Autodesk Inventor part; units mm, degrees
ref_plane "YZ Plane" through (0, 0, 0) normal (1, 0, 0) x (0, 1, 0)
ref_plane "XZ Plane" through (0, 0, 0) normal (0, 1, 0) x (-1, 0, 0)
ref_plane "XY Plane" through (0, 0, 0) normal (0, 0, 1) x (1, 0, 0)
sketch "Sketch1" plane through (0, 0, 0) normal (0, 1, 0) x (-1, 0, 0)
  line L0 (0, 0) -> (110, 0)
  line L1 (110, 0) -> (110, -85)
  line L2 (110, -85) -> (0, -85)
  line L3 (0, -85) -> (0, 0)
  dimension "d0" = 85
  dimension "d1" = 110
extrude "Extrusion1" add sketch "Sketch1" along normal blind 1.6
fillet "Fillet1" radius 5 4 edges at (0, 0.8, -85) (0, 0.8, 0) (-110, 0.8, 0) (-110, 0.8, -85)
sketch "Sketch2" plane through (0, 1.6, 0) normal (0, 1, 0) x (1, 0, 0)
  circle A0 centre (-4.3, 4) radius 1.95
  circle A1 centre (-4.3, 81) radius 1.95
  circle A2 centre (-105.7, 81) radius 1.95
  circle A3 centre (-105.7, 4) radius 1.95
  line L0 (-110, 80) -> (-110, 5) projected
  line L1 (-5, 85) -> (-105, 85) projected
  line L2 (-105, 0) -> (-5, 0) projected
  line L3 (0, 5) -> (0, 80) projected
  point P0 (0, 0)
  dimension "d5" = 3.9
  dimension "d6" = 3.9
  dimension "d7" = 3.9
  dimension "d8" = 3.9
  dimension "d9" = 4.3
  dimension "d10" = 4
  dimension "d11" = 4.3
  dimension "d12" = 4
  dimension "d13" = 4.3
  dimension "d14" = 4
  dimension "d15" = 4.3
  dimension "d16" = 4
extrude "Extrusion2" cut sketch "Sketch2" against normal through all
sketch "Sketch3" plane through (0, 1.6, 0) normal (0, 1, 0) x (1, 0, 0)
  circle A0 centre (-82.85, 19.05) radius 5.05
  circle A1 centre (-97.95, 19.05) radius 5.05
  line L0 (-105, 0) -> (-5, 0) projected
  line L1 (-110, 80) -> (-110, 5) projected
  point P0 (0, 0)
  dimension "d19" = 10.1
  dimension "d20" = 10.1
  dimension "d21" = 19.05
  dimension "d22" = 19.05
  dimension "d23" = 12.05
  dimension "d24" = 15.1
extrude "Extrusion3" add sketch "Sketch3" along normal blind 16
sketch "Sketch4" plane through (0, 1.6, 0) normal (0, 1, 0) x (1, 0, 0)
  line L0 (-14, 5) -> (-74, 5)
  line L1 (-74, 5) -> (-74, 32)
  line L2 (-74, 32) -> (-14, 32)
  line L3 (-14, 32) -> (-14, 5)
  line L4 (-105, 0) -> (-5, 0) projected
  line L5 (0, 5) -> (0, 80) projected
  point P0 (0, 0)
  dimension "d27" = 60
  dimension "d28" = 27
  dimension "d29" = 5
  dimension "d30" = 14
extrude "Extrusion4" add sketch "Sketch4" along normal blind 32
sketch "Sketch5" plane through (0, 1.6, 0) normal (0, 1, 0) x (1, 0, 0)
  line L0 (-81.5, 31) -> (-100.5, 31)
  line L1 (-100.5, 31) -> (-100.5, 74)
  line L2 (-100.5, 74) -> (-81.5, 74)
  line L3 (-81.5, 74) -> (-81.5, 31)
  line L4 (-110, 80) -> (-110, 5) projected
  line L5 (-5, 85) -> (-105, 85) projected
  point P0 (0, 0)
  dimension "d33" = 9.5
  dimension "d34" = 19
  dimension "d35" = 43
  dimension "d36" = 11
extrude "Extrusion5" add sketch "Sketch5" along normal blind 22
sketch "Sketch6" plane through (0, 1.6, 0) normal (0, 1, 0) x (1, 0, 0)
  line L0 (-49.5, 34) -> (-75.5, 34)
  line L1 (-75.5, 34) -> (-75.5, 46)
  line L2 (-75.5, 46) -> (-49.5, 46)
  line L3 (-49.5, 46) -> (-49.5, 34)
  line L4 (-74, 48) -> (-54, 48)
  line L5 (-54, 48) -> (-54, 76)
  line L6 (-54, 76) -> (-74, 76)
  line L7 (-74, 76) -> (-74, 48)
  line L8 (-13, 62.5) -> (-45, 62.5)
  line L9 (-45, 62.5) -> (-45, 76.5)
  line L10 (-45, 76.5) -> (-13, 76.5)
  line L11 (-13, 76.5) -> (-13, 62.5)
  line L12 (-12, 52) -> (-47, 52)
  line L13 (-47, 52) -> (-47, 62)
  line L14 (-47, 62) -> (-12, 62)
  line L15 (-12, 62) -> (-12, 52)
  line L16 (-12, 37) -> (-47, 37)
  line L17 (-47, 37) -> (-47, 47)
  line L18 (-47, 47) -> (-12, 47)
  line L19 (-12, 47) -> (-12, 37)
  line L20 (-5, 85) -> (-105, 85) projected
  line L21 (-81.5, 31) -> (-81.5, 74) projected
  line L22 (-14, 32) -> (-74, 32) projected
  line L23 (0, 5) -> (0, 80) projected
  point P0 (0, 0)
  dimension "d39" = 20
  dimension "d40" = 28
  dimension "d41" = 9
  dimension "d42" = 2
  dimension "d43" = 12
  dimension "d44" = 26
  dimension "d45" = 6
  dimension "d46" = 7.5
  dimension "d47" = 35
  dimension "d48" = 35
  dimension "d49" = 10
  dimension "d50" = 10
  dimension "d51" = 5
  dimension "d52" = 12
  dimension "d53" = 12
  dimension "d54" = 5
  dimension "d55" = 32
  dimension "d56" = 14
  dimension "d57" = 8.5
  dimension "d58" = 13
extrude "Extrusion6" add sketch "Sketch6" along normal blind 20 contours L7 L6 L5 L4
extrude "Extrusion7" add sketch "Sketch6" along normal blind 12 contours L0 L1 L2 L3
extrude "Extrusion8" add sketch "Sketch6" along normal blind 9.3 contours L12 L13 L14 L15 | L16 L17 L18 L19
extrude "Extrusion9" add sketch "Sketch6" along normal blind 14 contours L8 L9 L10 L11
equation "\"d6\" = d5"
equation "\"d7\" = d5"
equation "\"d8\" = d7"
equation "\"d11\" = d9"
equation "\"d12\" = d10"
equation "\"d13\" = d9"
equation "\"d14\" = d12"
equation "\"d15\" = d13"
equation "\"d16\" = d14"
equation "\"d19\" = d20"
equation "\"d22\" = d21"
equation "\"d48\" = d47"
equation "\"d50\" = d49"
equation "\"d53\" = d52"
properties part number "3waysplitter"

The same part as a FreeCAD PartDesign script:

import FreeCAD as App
import Part
import Sketcher
Q = App.Units.Quantity


def edges_at(feature, points):
    """Names of the edges that pass closest to the given points."""
    edges = feature.Shape.Edges
    near = lambda p: min(range(len(edges)), key=lambda i: edges[i].distToShape(Part.Vertex(*p))[0])
    return sorted({f"Edge{near(p) + 1}" for p in points})


def add_polygon(sketch, points):
    """Adds a closed chain of lines whose ends are joined by coincident constraints."""
    first, n = sketch.GeometryCount, len(points)
    for a, b in zip(points, points[1:] + points[:1]):
        sketch.addGeometry(Part.LineSegment(App.Vector(*a, 0), App.Vector(*b, 0)), False)
    for i in range(n):
        sketch.addConstraint(Sketcher.Constraint("Coincident", first + i, 2, first + (i + 1) % n, 1))

doc = App.newDocument("Part")
body = doc.addObject("PartDesign::Body", "Body")

sketch1 = doc.addObject("Sketcher::SketchObject", "Sketch")
body.addObject(sketch1)
sketch1.AttachmentSupport = (doc.XZ_Plane, [""])
sketch1.MapMode = "FlatFace"
add_polygon(sketch1, [(-110, 0), (0, 0), (0, -85), (-110, -85)])
sketch1.addConstraint([
    Sketcher.Constraint("Horizontal", 0),
    Sketcher.Constraint("Vertical", 1),
    Sketcher.Constraint("Horizontal", 2),
    Sketcher.Constraint("Vertical", 3),
    Sketcher.Constraint("Coincident", 0, 2, -1, 1),
    Sketcher.Constraint("DistanceX", 0, 1, 0, 2, Q("110 mm")),
    Sketcher.Constraint("DistanceY", 1, 2, 1, 1, Q("85 mm")),
])
pad1 = doc.addObject("PartDesign::Pad", "Pad")
body.addObject(pad1)
pad1.Profile = sketch1
pad1.Length = 1.6
pad1.Reversed = True
doc.recompute()

fillet = doc.addObject("PartDesign::Fillet", "Fillet")
body.addObject(fillet)
fillet.Base = (pad1, edges_at(pad1, [
    (0, 0.8, -85),
    (0, 0.8, 0),
    (-110, 0.8, 0),
    (-110, 0.8, -85),
]))
fillet.Radius = 5

sketch2 = doc.addObject("Sketcher::SketchObject", "Sketch001")
body.addObject(sketch2)
sketch2.AttachmentSupport = (doc.XZ_Plane, [""])
sketch2.MapMode = "FlatFace"
sketch2.AttachmentOffset = App.Placement(App.Vector(0, 0, -1.6), App.Rotation())
sketch2.addGeometry([
    Part.Circle(App.Vector(-4.3, -4, 0), App.Vector(0, 0, 1), 1.95),
    Part.Circle(App.Vector(-4.3, -81, 0), App.Vector(0, 0, 1), 1.95),
    Part.Circle(App.Vector(-105.7, -81, 0), App.Vector(0, 0, 1), 1.95),
    Part.Circle(App.Vector(-105.7, -4, 0), App.Vector(0, 0, 1), 1.95),
], False)
sketch2.addConstraint([
    Sketcher.Constraint("Equal", 0, 1),
    Sketcher.Constraint("Equal", 1, 2),
    Sketcher.Constraint("Equal", 2, 3),
    Sketcher.Constraint("Horizontal", 1, 3, 2, 3),
    Sketcher.Constraint("Horizontal", 0, 3, 3, 3),
    Sketcher.Constraint("Vertical", 0, 3, 1, 3),
    Sketcher.Constraint("Vertical", 2, 3, 3, 3),
    Sketcher.Constraint("Diameter", 0, Q("3.9 mm")),
    Sketcher.Constraint("DistanceY", 0, 3, -1, 1, Q("4 mm")),
    Sketcher.Constraint("DistanceX", 0, 3, -1, 1, Q("4.3 mm")),
    Sketcher.Constraint("DistanceY", 1, 3, -1, 1, Q("81 mm")),
    Sketcher.Constraint("DistanceX", 2, 3, -1, 1, Q("105.7 mm")),
])
pocket1 = doc.addObject("PartDesign::Pocket", "Pocket")
body.addObject(pocket1)
pocket1.Profile = sketch2
pocket1.Type = "ThroughAll"
pocket1.Reversed = True

sketch3 = doc.addObject("Sketcher::SketchObject", "Sketch002")
body.addObject(sketch3)
sketch3.AttachmentSupport = (doc.XZ_Plane, [""])
sketch3.MapMode = "FlatFace"
sketch3.AttachmentOffset = App.Placement(App.Vector(0, 0, -1.6), App.Rotation())
sketch3.addGeometry([
    Part.Circle(App.Vector(-82.85, -19.05, 0), App.Vector(0, 0, 1), 5.05),
    Part.Circle(App.Vector(-97.95, -19.05, 0), App.Vector(0, 0, 1), 5.05),
], False)
sketch3.addConstraint([
    Sketcher.Constraint("Equal", 0, 1),
    Sketcher.Constraint("Horizontal", 0, 3, 1, 3),
    Sketcher.Constraint("Diameter", 0, Q("10.1 mm")),
    Sketcher.Constraint("DistanceX", 1, 3, 0, 3, Q("15.1 mm")),
    Sketcher.Constraint("DistanceY", 0, 3, -1, 1, Q("19.05 mm")),
    Sketcher.Constraint("DistanceX", 0, 3, -1, 1, Q("82.85 mm")),
])
pad2 = doc.addObject("PartDesign::Pad", "Pad001")
body.addObject(pad2)
pad2.Profile = sketch3
pad2.Length = 16
pad2.Reversed = True

sketch4 = doc.addObject("Sketcher::SketchObject", "Sketch003")
body.addObject(sketch4)
sketch4.AttachmentSupport = (doc.XZ_Plane, [""])
sketch4.MapMode = "FlatFace"
sketch4.AttachmentOffset = App.Placement(App.Vector(0, 0, -1.6), App.Rotation())
add_polygon(sketch4, [(-74, -5), (-14, -5), (-14, -32), (-74, -32)])
sketch4.addConstraint([
    Sketcher.Constraint("Horizontal", 0),
    Sketcher.Constraint("Vertical", 1),
    Sketcher.Constraint("Horizontal", 2),
    Sketcher.Constraint("Vertical", 3),
    Sketcher.Constraint("DistanceX", 0, 1, 0, 2, Q("60 mm")),
    Sketcher.Constraint("DistanceY", 1, 2, 1, 1, Q("27 mm")),
    Sketcher.Constraint("DistanceX", 0, 2, -1, 1, Q("14 mm")),
    Sketcher.Constraint("DistanceY", 0, 2, -1, 1, Q("5 mm")),
])
pad3 = doc.addObject("PartDesign::Pad", "Pad002")
body.addObject(pad3)
pad3.Profile = sketch4
pad3.Length = 32
pad3.Reversed = True

sketch5 = doc.addObject("Sketcher::SketchObject", "Sketch004")
body.addObject(sketch5)
sketch5.AttachmentSupport = (doc.XZ_Plane, [""])
sketch5.MapMode = "FlatFace"
sketch5.AttachmentOffset = App.Placement(App.Vector(0, 0, -1.6), App.Rotation())
add_polygon(sketch5, [(-100.5, -31), (-81.5, -31), (-81.5, -74), (-100.5, -74)])
sketch5.addConstraint([
    Sketcher.Constraint("Horizontal", 0),
    Sketcher.Constraint("Vertical", 1),
    Sketcher.Constraint("Horizontal", 2),
    Sketcher.Constraint("Vertical", 3),
    Sketcher.Constraint("DistanceX", 0, 1, 0, 2, Q("19 mm")),
    Sketcher.Constraint("DistanceY", 1, 2, 1, 1, Q("43 mm")),
    Sketcher.Constraint("DistanceY", 0, 2, -1, 1, Q("31 mm")),
    Sketcher.Constraint("DistanceX", 0, 2, -1, 1, Q("81.5 mm")),
])
pad4 = doc.addObject("PartDesign::Pad", "Pad003")
body.addObject(pad4)
pad4.Profile = sketch5
pad4.Length = 22
pad4.Reversed = True

sketch6 = doc.addObject("Sketcher::SketchObject", "Sketch005")
body.addObject(sketch6)
sketch6.AttachmentSupport = (doc.XZ_Plane, [""])
sketch6.MapMode = "FlatFace"
sketch6.AttachmentOffset = App.Placement(App.Vector(0, 0, -1.6), App.Rotation())
add_polygon(sketch6, [(-74, -76), (-74, -48), (-54, -48), (-54, -76)])
sketch6.addConstraint([
    Sketcher.Constraint("Vertical", 0),
    Sketcher.Constraint("Horizontal", 1),
    Sketcher.Constraint("Vertical", 2),
    Sketcher.Constraint("Horizontal", 3),
    Sketcher.Constraint("DistanceX", 1, 1, 1, 2, Q("20 mm")),
    Sketcher.Constraint("DistanceY", 0, 1, 0, 2, Q("28 mm")),
    Sketcher.Constraint("DistanceX", 0, 2, -1, 1, Q("74 mm")),
    Sketcher.Constraint("DistanceY", 0, 2, -1, 1, Q("48 mm")),
])
pad5 = doc.addObject("PartDesign::Pad", "Pad004")
body.addObject(pad5)
pad5.Profile = sketch6
pad5.Length = 20
pad5.Reversed = True

sketch7 = doc.addObject("Sketcher::SketchObject", "Sketch006")
body.addObject(sketch7)
sketch7.AttachmentSupport = (doc.XZ_Plane, [""])
sketch7.MapMode = "FlatFace"
sketch7.AttachmentOffset = App.Placement(App.Vector(0, 0, -1.6), App.Rotation())
add_polygon(sketch7, [(-75.5, -34), (-49.5, -34), (-49.5, -46), (-75.5, -46)])
sketch7.addConstraint([
    Sketcher.Constraint("Horizontal", 0),
    Sketcher.Constraint("Vertical", 1),
    Sketcher.Constraint("Horizontal", 2),
    Sketcher.Constraint("Vertical", 3),
    Sketcher.Constraint("DistanceX", 0, 1, 0, 2, Q("26 mm")),
    Sketcher.Constraint("DistanceY", 1, 2, 1, 1, Q("12 mm")),
    Sketcher.Constraint("DistanceY", 0, 2, -1, 1, Q("34 mm")),
    Sketcher.Constraint("DistanceX", 0, 2, -1, 1, Q("49.5 mm")),
])
pad6 = doc.addObject("PartDesign::Pad", "Pad005")
body.addObject(pad6)
pad6.Profile = sketch7
pad6.Length = 12
pad6.Reversed = True

sketch8 = doc.addObject("Sketcher::SketchObject", "Sketch007")
body.addObject(sketch8)
sketch8.AttachmentSupport = (doc.XZ_Plane, [""])
sketch8.MapMode = "FlatFace"
sketch8.AttachmentOffset = App.Placement(App.Vector(0, 0, -1.6), App.Rotation())
add_polygon(sketch8, [(-47, -52), (-12, -52), (-12, -62), (-47, -62)])
add_polygon(sketch8, [(-47, -37), (-12, -37), (-12, -47), (-47, -47)])
sketch8.addConstraint([
    Sketcher.Constraint("Horizontal", 0),
    Sketcher.Constraint("Vertical", 1),
    Sketcher.Constraint("Horizontal", 2),
    Sketcher.Constraint("Vertical", 3),
    Sketcher.Constraint("Horizontal", 4),
    Sketcher.Constraint("Vertical", 5),
    Sketcher.Constraint("Horizontal", 6),
    Sketcher.Constraint("Vertical", 7),
    Sketcher.Constraint("Vertical", 1, 2, 4, 2),
    Sketcher.Constraint("Vertical", 3, 2, 6, 2),
    Sketcher.Constraint("Equal", 3, 5),
    Sketcher.Constraint("DistanceX", 0, 1, 0, 2, Q("35 mm")),
    Sketcher.Constraint("DistanceY", 1, 2, 1, 1, Q("10 mm")),
    Sketcher.Constraint("DistanceX", 0, 2, -1, 1, Q("12 mm")),
    Sketcher.Constraint("DistanceY", 0, 2, 5, 2, Q("5 mm")),
    Sketcher.Constraint("DistanceY", 0, 2, -1, 1, Q("52 mm")),
])
pad7 = doc.addObject("PartDesign::Pad", "Pad006")
body.addObject(pad7)
pad7.Profile = sketch8
pad7.Length = 9.3
pad7.Reversed = True

sketch9 = doc.addObject("Sketcher::SketchObject", "Sketch008")
body.addObject(sketch9)
sketch9.AttachmentSupport = (doc.XZ_Plane, [""])
sketch9.MapMode = "FlatFace"
sketch9.AttachmentOffset = App.Placement(App.Vector(0, 0, -1.6), App.Rotation())
add_polygon(sketch9, [(-45, -62.5), (-13, -62.5), (-13, -76.5), (-45, -76.5)])
sketch9.addConstraint([
    Sketcher.Constraint("Horizontal", 0),
    Sketcher.Constraint("Vertical", 1),
    Sketcher.Constraint("Horizontal", 2),
    Sketcher.Constraint("Vertical", 3),
    Sketcher.Constraint("DistanceX", 0, 1, 0, 2, Q("32 mm")),
    Sketcher.Constraint("DistanceY", 1, 2, 1, 1, Q("14 mm")),
    Sketcher.Constraint("DistanceX", 0, 2, -1, 1, Q("13 mm")),
    Sketcher.Constraint("DistanceY", 0, 2, -1, 1, Q("62.5 mm")),
])
pad8 = doc.addObject("PartDesign::Pad", "Pad007")
body.addObject(pad8)
pad8.Profile = sketch9
pad8.Length = 14
pad8.Reversed = True

doc.recompute()
